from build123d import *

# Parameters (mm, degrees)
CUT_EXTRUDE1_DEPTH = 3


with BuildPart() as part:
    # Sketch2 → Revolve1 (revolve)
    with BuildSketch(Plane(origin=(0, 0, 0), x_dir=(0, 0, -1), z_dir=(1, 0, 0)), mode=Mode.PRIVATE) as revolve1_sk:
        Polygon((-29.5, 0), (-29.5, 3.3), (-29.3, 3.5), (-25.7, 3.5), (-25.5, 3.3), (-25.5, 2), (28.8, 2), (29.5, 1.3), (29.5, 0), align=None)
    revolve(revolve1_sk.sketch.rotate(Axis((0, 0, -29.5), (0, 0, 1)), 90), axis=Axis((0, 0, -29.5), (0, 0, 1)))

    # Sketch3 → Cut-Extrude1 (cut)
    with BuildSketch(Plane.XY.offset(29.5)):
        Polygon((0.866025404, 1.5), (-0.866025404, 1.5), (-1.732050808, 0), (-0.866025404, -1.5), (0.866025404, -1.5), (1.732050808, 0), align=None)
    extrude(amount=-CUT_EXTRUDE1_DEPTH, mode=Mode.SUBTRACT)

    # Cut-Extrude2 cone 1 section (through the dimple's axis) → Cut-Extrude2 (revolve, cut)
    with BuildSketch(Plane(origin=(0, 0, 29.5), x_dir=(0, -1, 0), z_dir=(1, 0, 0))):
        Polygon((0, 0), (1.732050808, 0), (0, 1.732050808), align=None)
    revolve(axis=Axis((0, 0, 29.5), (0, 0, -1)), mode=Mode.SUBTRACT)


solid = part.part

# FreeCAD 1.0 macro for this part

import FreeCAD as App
import Part
import Sketcher
Q = App.Units.Quantity


def add_polygon(sketch, points):
    """Adds a closed chain of lines whose ends are joined by coincident constraints."""
    first, n = sketch.GeometryCount, len(points)
    for a, b in zip(points, points[1:] + points[:1]):
        sketch.addGeometry(Part.LineSegment(App.Vector(*a, 0), App.Vector(*b, 0)), False)
    for i in range(n):
        sketch.addConstraint(Sketcher.Constraint("Coincident", first + i, 2, first + (i + 1) % n, 1))

doc = App.newDocument("Part")
body = doc.addObject("PartDesign::Body", "Body")

sketch1 = doc.addObject("Sketcher::SketchObject", "Sketch")
body.addObject(sketch1)
sketch1.AttachmentSupport = (doc.YZ_Plane, [""])
sketch1.MapMode = "FlatFace"
add_polygon(sketch1, [(3.3, 29.5), (0, 29.5), (0, -29.5), (1.3, -29.5), (2, -28.8), (2, 25.5), (3.3, 25.5), (3.5, 25.7), (3.5, 29.3)])
sketch1.addConstraint([
    Sketcher.Constraint("Horizontal", 0),
    Sketcher.Constraint("Vertical", 1),
    Sketcher.Constraint("Horizontal", 2),
    Sketcher.Constraint("Vertical", 4),
    Sketcher.Constraint("Horizontal", 5),
    Sketcher.Constraint("Vertical", 7),
    Sketcher.Constraint("Symmetric", 0, 2, 1, 2, -1, 1),
    Sketcher.Constraint("Parallel", 3, 6),
    Sketcher.Constraint("Perpendicular", 6, 8),
    Sketcher.Constraint("Vertical", 5, 2, 8, 2),
    Sketcher.Constraint("Equal", 2, 5),
    Sketcher.Constraint("Equal", 6, 8),
    Sketcher.Constraint("DistanceY", 1, 2, 1, 1, Q("59 mm")),
    Sketcher.Constraint("DistanceX", 0, 2, 0, 1, Q("3.3 mm")),
    Sketcher.Constraint("DistanceX", 2, 1, 2, 2, Q("1.3 mm")),
    Sketcher.Constraint("DistanceY", 4, 1, 4, 2, Q("54.3 mm")),
    Sketcher.Constraint("DistanceY", 7, 1, 7, 2, Q("3.6 mm")),
])
revolution = doc.addObject("PartDesign::Revolution", "Revolution")
body.addObject(revolution)
revolution.Profile = sketch1
revolution.ReferenceAxis = (sketch1, ["V_Axis"])
revolution.Angle = 360

sketch2 = doc.addObject("Sketcher::SketchObject", "Sketch001")
body.addObject(sketch2)
sketch2.AttachmentSupport = (doc.XY_Plane, [""])
sketch2.MapMode = "FlatFace"
sketch2.AttachmentOffset = App.Placement(App.Vector(0, 0, 29.5), App.Rotation())
add_polygon(sketch2, [(0.9, 1.5), (-0.9, 1.5), (-1.7, 0), (-0.9, -1.5), (0.9, -1.5), (1.7, 0)])
sketch2.addConstraint([
    Sketcher.Constraint("Horizontal", 0),
    Sketcher.Constraint("Horizontal", 3),
    Sketcher.Constraint("Symmetric", 0, 2, 3, 2, -1, 1),
    Sketcher.Constraint("Symmetric", 1, 2, 4, 2, -1, 1),
    Sketcher.Constraint("PointOnObject", 1, 2, -1),
    Sketcher.Constraint("Parallel", 2, 5),
    Sketcher.Constraint("Vertical", 0, 2, 2, 2),
    Sketcher.Constraint("Angle", 1, Q("-120 deg")),
    Sketcher.Constraint("DistanceY", 2, 2, 0, 2, Q("3 mm")),
    Sketcher.Constraint("DistanceX", 0, 2, 0, 1, Q("1.732051 mm")),
])
pocket1 = doc.addObject("PartDesign::Pocket", "Pocket")
body.addObject(pocket1)
pocket1.Profile = sketch2
pocket1.Length = 3

sketch3 = doc.addObject("Sketcher::SketchObject", "Sketch002")
body.addObject(sketch3)
sketch3.AttachmentSupport = (doc.YZ_Plane, [""])
sketch3.MapMode = "FlatFace"
add_polygon(sketch3, [(0, 29.5), (-1.7, 29.5), (0, 27.8)])
sketch3.addConstraint([
    Sketcher.Constraint("Horizontal", 0),
    Sketcher.Constraint("Vertical", 2),
    Sketcher.Constraint("PointOnObject", 1, 2, -2),
    Sketcher.Constraint("Equal", 0, 2),
    Sketcher.Constraint("DistanceY", -1, 1, 0, 2, Q("29.5 mm")),
    Sketcher.Constraint("DistanceX", 0, 2, 0, 1, Q("1.732051 mm")),
])
groove = doc.addObject("PartDesign::Groove", "Groove")
body.addObject(groove)
groove.Profile = sketch3
groove.ReferenceAxis = (sketch3, ["V_Axis"])
groove.Angle = 360

doc.recompute()
